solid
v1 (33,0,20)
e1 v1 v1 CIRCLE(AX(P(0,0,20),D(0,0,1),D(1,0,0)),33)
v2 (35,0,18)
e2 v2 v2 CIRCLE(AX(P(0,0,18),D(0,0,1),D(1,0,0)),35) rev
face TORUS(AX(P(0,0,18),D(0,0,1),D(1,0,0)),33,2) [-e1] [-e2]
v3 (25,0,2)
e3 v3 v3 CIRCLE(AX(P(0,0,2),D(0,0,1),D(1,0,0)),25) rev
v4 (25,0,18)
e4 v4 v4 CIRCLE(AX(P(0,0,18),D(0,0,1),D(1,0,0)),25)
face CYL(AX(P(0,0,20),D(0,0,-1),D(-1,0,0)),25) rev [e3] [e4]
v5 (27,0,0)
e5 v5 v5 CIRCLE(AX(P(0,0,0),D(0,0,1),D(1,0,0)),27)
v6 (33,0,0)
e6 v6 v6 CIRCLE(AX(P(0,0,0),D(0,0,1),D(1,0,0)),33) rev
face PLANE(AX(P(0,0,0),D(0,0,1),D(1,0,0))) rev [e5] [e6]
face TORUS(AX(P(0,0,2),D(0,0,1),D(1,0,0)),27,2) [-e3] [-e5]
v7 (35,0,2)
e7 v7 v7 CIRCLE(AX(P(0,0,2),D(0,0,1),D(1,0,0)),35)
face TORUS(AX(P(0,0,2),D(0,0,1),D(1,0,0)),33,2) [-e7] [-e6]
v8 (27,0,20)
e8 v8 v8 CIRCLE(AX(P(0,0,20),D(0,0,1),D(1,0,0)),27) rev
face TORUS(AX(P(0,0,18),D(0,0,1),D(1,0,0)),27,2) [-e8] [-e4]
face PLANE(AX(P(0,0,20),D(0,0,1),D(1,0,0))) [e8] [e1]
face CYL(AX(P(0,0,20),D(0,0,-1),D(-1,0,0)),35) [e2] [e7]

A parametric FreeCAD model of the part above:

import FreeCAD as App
import Part
import Sketcher

V = App.Vector


def edges_at(feature, points):
    """Names of the edges that pass closest to the given points."""
    edges = feature.Shape.Edges
    near = lambda p: min(range(len(edges)), key=lambda i: edges[i].distToShape(Part.Vertex(*p))[0])
    return sorted({f"Edge{near(p) + 1}" for p in points})

doc = App.newDocument("Part")
body = doc.addObject("PartDesign::Body", "Body")

sketch1 = body.newObject("Sketcher::SketchObject", "Sketch")
sketch1.AttachmentSupport = (doc.getObject("XY_Plane"), [""])
sketch1.MapMode = "FlatFace"
sketch1.addGeometry(Part.Circle(V(0, 0, 0), V(0, 0, 1), 35), False)
sketch1.addGeometry(Part.Circle(V(0, 0, 0), V(0, 0, 1), 25), False)
sketch1.addConstraint(Sketcher.Constraint("Coincident", 0, 3, -1, 1))
sketch1.addConstraint(Sketcher.Constraint("Coincident", 1, 3, -1, 1))
sketch1.addConstraint(Sketcher.Constraint("Diameter", 0, 70.0))
sketch1.addConstraint(Sketcher.Constraint("Diameter", 1, 50.0))
pad1 = body.newObject("PartDesign::Pad", "Pad")
pad1.Profile = sketch1
pad1.Length = 20
doc.recompute()

fillet = body.newObject("PartDesign::Fillet", "Fillet")
fillet.Base = (pad1, edges_at(pad1, [
    (-35, 0, 0),
    (-35, 0, 20),
    (-25, 0, 0),
    (-25, 0, 20),
]))
fillet.Radius = 2

doc.recompute()
